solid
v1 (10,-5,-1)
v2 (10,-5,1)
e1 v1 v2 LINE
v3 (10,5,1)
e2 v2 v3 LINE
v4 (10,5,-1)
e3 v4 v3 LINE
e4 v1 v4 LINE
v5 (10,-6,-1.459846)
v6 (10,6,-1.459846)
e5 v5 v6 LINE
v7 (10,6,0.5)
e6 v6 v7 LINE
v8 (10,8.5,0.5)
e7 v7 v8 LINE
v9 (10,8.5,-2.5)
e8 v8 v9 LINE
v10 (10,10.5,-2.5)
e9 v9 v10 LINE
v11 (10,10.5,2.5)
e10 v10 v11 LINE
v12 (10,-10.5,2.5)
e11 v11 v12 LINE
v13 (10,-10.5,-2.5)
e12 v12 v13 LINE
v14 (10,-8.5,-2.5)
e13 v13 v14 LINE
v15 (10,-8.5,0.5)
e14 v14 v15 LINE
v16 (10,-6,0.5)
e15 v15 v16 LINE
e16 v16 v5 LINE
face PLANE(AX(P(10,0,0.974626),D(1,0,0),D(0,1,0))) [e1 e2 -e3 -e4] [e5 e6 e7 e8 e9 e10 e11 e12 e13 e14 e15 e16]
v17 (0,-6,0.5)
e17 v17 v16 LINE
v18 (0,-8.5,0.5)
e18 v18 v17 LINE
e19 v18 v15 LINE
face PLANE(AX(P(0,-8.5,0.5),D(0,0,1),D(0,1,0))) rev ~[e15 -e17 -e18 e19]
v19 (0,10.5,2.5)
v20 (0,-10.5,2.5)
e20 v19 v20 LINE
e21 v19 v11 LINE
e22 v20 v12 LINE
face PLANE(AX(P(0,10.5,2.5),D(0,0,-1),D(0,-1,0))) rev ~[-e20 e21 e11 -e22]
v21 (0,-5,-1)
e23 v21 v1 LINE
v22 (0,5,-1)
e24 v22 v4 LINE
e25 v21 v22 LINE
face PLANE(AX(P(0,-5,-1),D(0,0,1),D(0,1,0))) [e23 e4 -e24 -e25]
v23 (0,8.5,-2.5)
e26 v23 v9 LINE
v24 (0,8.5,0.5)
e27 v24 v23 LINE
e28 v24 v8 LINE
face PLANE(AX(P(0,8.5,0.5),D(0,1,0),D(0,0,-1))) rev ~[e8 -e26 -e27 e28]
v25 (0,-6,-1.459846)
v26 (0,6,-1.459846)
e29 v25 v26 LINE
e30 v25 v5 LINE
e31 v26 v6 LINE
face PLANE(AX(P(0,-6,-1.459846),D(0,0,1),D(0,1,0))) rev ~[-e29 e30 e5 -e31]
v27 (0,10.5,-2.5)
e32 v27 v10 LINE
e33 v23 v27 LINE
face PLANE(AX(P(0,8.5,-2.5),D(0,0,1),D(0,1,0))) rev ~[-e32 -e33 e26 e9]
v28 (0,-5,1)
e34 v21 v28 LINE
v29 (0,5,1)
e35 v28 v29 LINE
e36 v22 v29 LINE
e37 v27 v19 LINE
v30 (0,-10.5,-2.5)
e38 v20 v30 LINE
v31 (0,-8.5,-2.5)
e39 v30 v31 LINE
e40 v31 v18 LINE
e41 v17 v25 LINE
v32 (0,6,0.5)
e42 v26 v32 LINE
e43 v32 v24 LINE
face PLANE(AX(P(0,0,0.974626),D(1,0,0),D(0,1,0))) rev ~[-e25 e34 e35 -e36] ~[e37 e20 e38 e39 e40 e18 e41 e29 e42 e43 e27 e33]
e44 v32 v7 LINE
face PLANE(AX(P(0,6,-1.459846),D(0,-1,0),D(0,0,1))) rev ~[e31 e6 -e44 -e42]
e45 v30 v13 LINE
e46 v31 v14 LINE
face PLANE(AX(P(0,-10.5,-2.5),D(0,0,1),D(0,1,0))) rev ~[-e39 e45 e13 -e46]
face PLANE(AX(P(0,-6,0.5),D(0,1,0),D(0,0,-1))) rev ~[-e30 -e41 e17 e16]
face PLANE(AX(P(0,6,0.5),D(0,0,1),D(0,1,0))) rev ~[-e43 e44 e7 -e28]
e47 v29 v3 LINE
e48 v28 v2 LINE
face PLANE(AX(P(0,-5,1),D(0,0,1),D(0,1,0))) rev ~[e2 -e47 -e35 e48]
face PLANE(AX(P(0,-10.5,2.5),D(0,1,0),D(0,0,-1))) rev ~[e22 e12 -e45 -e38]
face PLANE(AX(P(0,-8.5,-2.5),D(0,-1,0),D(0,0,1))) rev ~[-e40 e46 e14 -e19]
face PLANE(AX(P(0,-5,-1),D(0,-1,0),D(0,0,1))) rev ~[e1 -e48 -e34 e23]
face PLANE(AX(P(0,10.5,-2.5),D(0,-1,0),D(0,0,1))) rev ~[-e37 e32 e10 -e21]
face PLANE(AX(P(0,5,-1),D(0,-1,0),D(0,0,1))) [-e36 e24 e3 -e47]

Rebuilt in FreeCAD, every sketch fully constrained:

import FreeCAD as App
import Part
import Sketcher

V = App.Vector


def add_polygon(sketch, points):
    """Adds a closed chain of lines whose ends are joined by coincident constraints."""
    first, n = sketch.GeometryCount, len(points)
    for a, b in zip(points, points[1:] + points[:1]):
        sketch.addGeometry(Part.LineSegment(App.Vector(*a, 0), App.Vector(*b, 0)), False)
    for i in range(n):
        sketch.addConstraint(Sketcher.Constraint("Coincident", first + i, 2, first + (i + 1) % n, 1))

doc = App.newDocument("Part")
params = doc.addObject("Spreadsheet::Sheet", "Params")
for row, (alias, value) in enumerate([
    ("sketch1_width", "21 mm"),
    ("sketch1_width2", "2 mm"),
    ("sketch1_width3", "12 mm"),
    ("sketch1_width4", "10 mm"),
    ("sketch1_height", "5 mm"),
    ("pad1_length", "10 mm"),
], start=1):
    params.set(f"A{row}", alias)
    params.set(f"B{row}", "=" + value)
    params.setAlias(f"B{row}", alias)

body = doc.addObject("PartDesign::Body", "Body")

sketch1 = body.newObject("Sketcher::SketchObject", "Sketch")
sketch1.AttachmentSupport = (doc.getObject("YZ_Plane"), [""])
sketch1.MapMode = "FlatFace"
add_polygon(sketch1, [(10.5, -2.5), (10.5, 2.5), (-10.5, 2.5), (-10.5, -2.5), (-8.5, -2.5), (-8.5, 0.5), (-6, 0.5), (-6, -1.5), (6, -1.5), (6, 0.5), (8.5, 0.5), (8.5, -2.5)])
add_polygon(sketch1, [(5, -1), (-5, -1), (-5, 1), (5, 1)])
sketch1.addConstraint([
    Sketcher.Constraint("Vertical", 0),
    Sketcher.Constraint("Horizontal", 1),
    Sketcher.Constraint("Vertical", 2),
    Sketcher.Constraint("Horizontal", 3),
    Sketcher.Constraint("Vertical", 4),
    Sketcher.Constraint("Horizontal", 5),
    Sketcher.Constraint("Vertical", 6),
    Sketcher.Constraint("Horizontal", 7),
    Sketcher.Constraint("Vertical", 8),
    Sketcher.Constraint("Horizontal", 9),
    Sketcher.Constraint("Vertical", 10),
    Sketcher.Constraint("Horizontal", 11),
    Sketcher.Constraint("Horizontal", 12),
    Sketcher.Constraint("Vertical", 13),
    Sketcher.Constraint("Horizontal", 14),
    Sketcher.Constraint("Vertical", 15),
    Sketcher.Constraint("Symmetric", 0, 2, 2, 2, -1, 1),
    Sketcher.Constraint("Symmetric", 12, 2, 14, 2, -1, 1),
    Sketcher.Constraint("Symmetric", 5, 2, 8, 2, -2),
    Sketcher.Constraint("Symmetric", 3, 2, 10, 2, -2),
    Sketcher.Constraint("Equal", 11, 13),
    Sketcher.Constraint("DistanceX", 1, 2, 1, 1, 21.0),
    Sketcher.Constraint("DistanceX", 3, 1, 3, 2, 2.0),
    Sketcher.Constraint("DistanceX", 7, 1, 7, 2, 12.0),
    Sketcher.Constraint("DistanceX", 12, 2, 12, 1, 10.0),
    Sketcher.Constraint("DistanceY", 0, 1, 0, 2, 5.0),
    Sketcher.Constraint("DistanceY", 4, 1, 4, 2, 3.0),
    Sketcher.Constraint("DistanceY", 6, 2, 6, 1, 1.959846),
])
sketch1.setExpression("Constraints[37]", "Params.sketch1_width")
sketch1.setExpression("Constraints[38]", "Params.sketch1_width2")
sketch1.setExpression("Constraints[39]", "Params.sketch1_width3")
sketch1.setExpression("Constraints[40]", "Params.sketch1_width4")
sketch1.setExpression("Constraints[41]", "Params.sketch1_height")
pad1 = body.newObject("PartDesign::Pad", "Pad")
pad1.Profile = sketch1
pad1.setExpression("Length", "Params.pad1_length")

doc.recompute()
